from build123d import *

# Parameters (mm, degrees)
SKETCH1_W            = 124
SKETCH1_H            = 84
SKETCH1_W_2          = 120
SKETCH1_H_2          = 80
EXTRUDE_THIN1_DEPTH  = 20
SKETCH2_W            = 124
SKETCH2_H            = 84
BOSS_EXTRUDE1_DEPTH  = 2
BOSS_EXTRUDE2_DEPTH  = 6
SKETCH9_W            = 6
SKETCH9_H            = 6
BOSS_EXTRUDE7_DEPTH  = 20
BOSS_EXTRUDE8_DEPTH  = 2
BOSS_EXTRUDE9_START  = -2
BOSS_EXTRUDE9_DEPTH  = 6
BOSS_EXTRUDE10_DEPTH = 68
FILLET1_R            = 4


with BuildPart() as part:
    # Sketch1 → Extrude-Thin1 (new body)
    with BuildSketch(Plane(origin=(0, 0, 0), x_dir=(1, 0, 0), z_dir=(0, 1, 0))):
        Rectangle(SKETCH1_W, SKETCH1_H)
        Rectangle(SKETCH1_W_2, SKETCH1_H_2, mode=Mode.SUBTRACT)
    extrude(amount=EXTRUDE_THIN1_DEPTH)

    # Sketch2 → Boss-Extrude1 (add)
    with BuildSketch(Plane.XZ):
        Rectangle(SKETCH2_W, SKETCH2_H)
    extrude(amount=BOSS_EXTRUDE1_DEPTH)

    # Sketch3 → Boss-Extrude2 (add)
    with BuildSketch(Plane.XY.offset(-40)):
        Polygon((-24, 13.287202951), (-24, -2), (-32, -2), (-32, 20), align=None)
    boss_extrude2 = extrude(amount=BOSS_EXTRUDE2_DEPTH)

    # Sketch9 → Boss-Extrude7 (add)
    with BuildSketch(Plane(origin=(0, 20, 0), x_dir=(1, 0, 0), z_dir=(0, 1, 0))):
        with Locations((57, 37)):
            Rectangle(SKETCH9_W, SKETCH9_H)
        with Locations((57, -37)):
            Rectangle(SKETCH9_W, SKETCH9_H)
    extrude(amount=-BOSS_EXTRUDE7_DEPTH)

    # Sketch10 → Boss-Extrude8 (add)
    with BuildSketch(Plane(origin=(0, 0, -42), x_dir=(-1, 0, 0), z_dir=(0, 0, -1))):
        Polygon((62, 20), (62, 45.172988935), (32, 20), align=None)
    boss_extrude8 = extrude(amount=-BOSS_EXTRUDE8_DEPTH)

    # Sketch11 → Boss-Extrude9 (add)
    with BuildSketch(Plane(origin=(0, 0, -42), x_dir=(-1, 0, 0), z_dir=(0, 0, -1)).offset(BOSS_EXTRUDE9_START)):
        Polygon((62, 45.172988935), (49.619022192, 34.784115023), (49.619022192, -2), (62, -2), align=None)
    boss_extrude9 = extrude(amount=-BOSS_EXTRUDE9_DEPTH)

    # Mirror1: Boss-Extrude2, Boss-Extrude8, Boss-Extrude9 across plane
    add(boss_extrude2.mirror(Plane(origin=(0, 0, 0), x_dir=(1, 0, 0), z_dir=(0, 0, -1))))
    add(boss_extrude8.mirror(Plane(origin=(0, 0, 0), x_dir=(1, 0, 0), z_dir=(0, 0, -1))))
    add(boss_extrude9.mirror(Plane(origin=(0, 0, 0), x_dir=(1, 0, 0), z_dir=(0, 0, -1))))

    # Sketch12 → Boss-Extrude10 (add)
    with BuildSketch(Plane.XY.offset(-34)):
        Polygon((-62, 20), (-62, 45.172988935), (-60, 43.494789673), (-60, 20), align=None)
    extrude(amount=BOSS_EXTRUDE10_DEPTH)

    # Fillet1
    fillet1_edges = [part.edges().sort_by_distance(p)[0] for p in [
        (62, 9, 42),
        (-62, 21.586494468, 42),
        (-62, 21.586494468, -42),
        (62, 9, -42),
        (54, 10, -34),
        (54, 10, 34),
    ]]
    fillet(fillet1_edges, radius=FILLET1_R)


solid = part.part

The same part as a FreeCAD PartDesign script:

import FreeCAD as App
import Part
import Sketcher
Q = App.Units.Quantity


def edges_at(feature, points):
    """Names of the edges that pass closest to the given points."""
    edges = feature.Shape.Edges
    near = lambda p: min(range(len(edges)), key=lambda i: edges[i].distToShape(Part.Vertex(*p))[0])
    return sorted({f"Edge{near(p) + 1}" for p in points})

doc = App.newDocument("Part")
params = doc.addObject("Spreadsheet::Sheet", "Params")
for row, (alias, value) in enumerate([
    ("sketch1_width", "124 mm"),
    ("sketch1_width2", "120 mm"),
    ("sketch1_height", "84 mm"),
    ("sketch1_height2", "80 mm"),
    ("pad1_length", "20 mm"),
    ("sketch2_width", "124 mm"),
    ("sketch2_height", "84 mm"),
    ("pad2_length", "2 mm"),
    ("sketch3_width", "8 mm"),
    ("sketch3_height", "22 mm"),
    ("pad3_length", "6 mm"),
    ("sketch4_width", "6 mm"),
    ("pad4_length", "20 mm"),
    ("sketch5_width", "30 mm"),
    ("pad5_length", "2 mm"),
    ("pad6_length", "6 mm"),
    ("sketch7_width", "2 mm"),
    ("pad7_length", "68 mm"),
    ("fillet_radius", "4 mm"),
], start=1):
    params.set(f"A{row}", alias)
    params.set(f"B{row}", "=" + value)
    params.setAlias(f"B{row}", alias)

body = doc.addObject("PartDesign::Body", "Body")

# Sketch on XZ plane
sketch1 = body.newObject("Sketcher::SketchObject", "Sketch")
sketch1.AttachmentSupport = (doc.getObject("XZ_Plane"), [""])
sketch1.MapMode = "FlatFace"
sketch1.addGeometry(Part.LineSegment(App.Vector(-62, -42, 0), App.Vector(-62, 42, 0)), False)
sketch1.addGeometry(Part.LineSegment(App.Vector(-62, 42, 0), App.Vector(62, 42, 0)), False)
sketch1.addGeometry(Part.LineSegment(App.Vector(62, 42, 0), App.Vector(62, -42, 0)), False)
sketch1.addGeometry(Part.LineSegment(App.Vector(62, -42, 0), App.Vector(-62, -42, 0)), False)
sketch1.addGeometry(Part.LineSegment(App.Vector(60, 40, 0), App.Vector(-60, 40, 0)), False)
sketch1.addGeometry(Part.LineSegment(App.Vector(-60, 40, 0), App.Vector(-60, -40, 0)), False)
sketch1.addGeometry(Part.LineSegment(App.Vector(-60, -40, 0), App.Vector(60, -40, 0)), False)
sketch1.addGeometry(Part.LineSegment(App.Vector(60, -40, 0), App.Vector(60, 40, 0)), False)
sketch1.addConstraint(Sketcher.Constraint("Coincident", 0, 2, 1, 1))
sketch1.addConstraint(Sketcher.Constraint("Coincident", 1, 2, 2, 1))
sketch1.addConstraint(Sketcher.Constraint("Coincident", 2, 2, 3, 1))
sketch1.addConstraint(Sketcher.Constraint("Coincident", 3, 2, 0, 1))
sketch1.addConstraint(Sketcher.Constraint("Coincident", 4, 2, 5, 1))
sketch1.addConstraint(Sketcher.Constraint("Coincident", 5, 2, 6, 1))
sketch1.addConstraint(Sketcher.Constraint("Coincident", 6, 2, 7, 1))
sketch1.addConstraint(Sketcher.Constraint("Coincident", 7, 2, 4, 1))
sketch1.addConstraint(Sketcher.Constraint("Vertical", 0))
sketch1.addConstraint(Sketcher.Constraint("Horizontal", 1))
sketch1.addConstraint(Sketcher.Constraint("Vertical", 2))
sketch1.addConstraint(Sketcher.Constraint("Horizontal", 3))
sketch1.addConstraint(Sketcher.Constraint("Horizontal", 4))
sketch1.addConstraint(Sketcher.Constraint("Vertical", 5))
sketch1.addConstraint(Sketcher.Constraint("Horizontal", 6))
sketch1.addConstraint(Sketcher.Constraint("Vertical", 7))
sketch1.addConstraint(Sketcher.Constraint("Symmetric", 0, 2, 2, 2, -1, 1))
sketch1.addConstraint(Sketcher.Constraint("Symmetric", 4, 2, 6, 2, -1, 1))
sketch1.addConstraint(Sketcher.Constraint("DistanceX", 1, 1, 1, 2, Q("124 mm")))
sketch1.addConstraint(Sketcher.Constraint("DistanceX", 4, 2, 4, 1, Q("120 mm")))
sketch1.addConstraint(Sketcher.Constraint("DistanceY", 0, 1, 0, 2, Q("84 mm")))
sketch1.addConstraint(Sketcher.Constraint("DistanceY", 5, 2, 5, 1, Q("80 mm")))
sketch1.setExpression("Constraints[18]", "Params.sketch1_width")
sketch1.setExpression("Constraints[19]", "Params.sketch1_width2")
sketch1.setExpression("Constraints[20]", "Params.sketch1_height")
sketch1.setExpression("Constraints[21]", "Params.sketch1_height2")
pad1 = body.newObject("PartDesign::Pad", "Pad")
pad1.Profile = sketch1
pad1.setExpression("Length", "Params.pad1_length")
pad1.Reversed = True

# Sketch on XZ plane
sketch2 = body.newObject("Sketcher::SketchObject", "Sketch001")
sketch2.AttachmentSupport = (doc.getObject("XZ_Plane"), [""])
sketch2.MapMode = "FlatFace"
sketch2.addGeometry(Part.LineSegment(App.Vector(-62, 42, 0), App.Vector(-62, -42, 0)), False)
sketch2.addGeometry(Part.LineSegment(App.Vector(-62, -42, 0), App.Vector(62, -42, 0)), False)
sketch2.addGeometry(Part.LineSegment(App.Vector(62, -42, 0), App.Vector(62, 42, 0)), False)
sketch2.addGeometry(Part.LineSegment(App.Vector(62, 42, 0), App.Vector(-62, 42, 0)), False)
sketch2.addConstraint(Sketcher.Constraint("Coincident", 0, 2, 1, 1))
sketch2.addConstraint(Sketcher.Constraint("Coincident", 1, 2, 2, 1))
sketch2.addConstraint(Sketcher.Constraint("Coincident", 2, 2, 3, 1))
sketch2.addConstraint(Sketcher.Constraint("Coincident", 3, 2, 0, 1))
sketch2.addConstraint(Sketcher.Constraint("Vertical", 0))
sketch2.addConstraint(Sketcher.Constraint("Horizontal", 1))
sketch2.addConstraint(Sketcher.Constraint("Vertical", 2))
sketch2.addConstraint(Sketcher.Constraint("Horizontal", 3))
sketch2.addConstraint(Sketcher.Constraint("Symmetric", 0, 2, 2, 2, -1, 1))
sketch2.addConstraint(Sketcher.Constraint("DistanceX", 1, 1, 1, 2, Q("124 mm")))
sketch2.addConstraint(Sketcher.Constraint("DistanceY", 0, 2, 0, 1, Q("84 mm")))
sketch2.setExpression("Constraints[9]", "Params.sketch2_width")
sketch2.setExpression("Constraints[10]", "Params.sketch2_height")
pad2 = body.newObject("PartDesign::Pad", "Pad001")
pad2.Profile = sketch2
pad2.setExpression("Length", "Params.pad2_length")

# Sketch on XY plane
sketch3 = body.newObject("Sketcher::SketchObject", "Sketch002")
sketch3.AttachmentSupport = (doc.getObject("XY_Plane"), [""])
sketch3.MapMode = "FlatFace"
sketch3.AttachmentOffset = App.Placement(App.Vector(0, 0, -40), App.Rotation())
sketch3.addGeometry(Part.LineSegment(App.Vector(-24, -2, 0), App.Vector(-24, 13.287203, 0)), False)
sketch3.addGeometry(Part.LineSegment(App.Vector(-24, 13.287203, 0), App.Vector(-32, 20, 0)), False)
sketch3.addGeometry(Part.LineSegment(App.Vector(-32, 20, 0), App.Vector(-32, -2, 0)), False)
sketch3.addGeometry(Part.LineSegment(App.Vector(-32, -2, 0), App.Vector(-24, -2, 0)), False)
sketch3.addConstraint(Sketcher.Constraint("Coincident", 0, 2, 1, 1))
sketch3.addConstraint(Sketcher.Constraint("Coincident", 1, 2, 2, 1))
sketch3.addConstraint(Sketcher.Constraint("Coincident", 2, 2, 3, 1))
sketch3.addConstraint(Sketcher.Constraint("Coincident", 3, 2, 0, 1))
sketch3.addConstraint(Sketcher.Constraint("Vertical", 0))
sketch3.addConstraint(Sketcher.Constraint("Vertical", 2))
sketch3.addConstraint(Sketcher.Constraint("Horizontal", 3))
sketch3.addConstraint(Sketcher.Constraint("DistanceX", 3, 1, 3, 2, Q("8 mm")))
sketch3.addConstraint(Sketcher.Constraint("DistanceY", 2, 2, 2, 1, Q("22 mm")))
sketch3.addConstraint(Sketcher.Constraint("Angle", 1, Q("140 deg")))
sketch3.addConstraint(Sketcher.Constraint("DistanceX", 0, 2, -1, 1, Q("24 mm")))
sketch3.addConstraint(Sketcher.Constraint("DistanceY", -1, 1, 1, 2, Q("20 mm")))
sketch3.setExpression("Constraints[7]", "Params.sketch3_width")
sketch3.setExpression("Constraints[8]", "Params.sketch3_height")
pad3 = body.newObject("PartDesign::Pad", "Pad002")
pad3.Profile = sketch3
pad3.setExpression("Length", "Params.pad3_length")

# Sketch on XZ plane
sketch4 = body.newObject("Sketcher::SketchObject", "Sketch003")
sketch4.AttachmentSupport = (doc.getObject("XZ_Plane"), [""])
sketch4.MapMode = "FlatFace"
sketch4.AttachmentOffset = App.Placement(App.Vector(0, 0, -20), App.Rotation())
sketch4.addGeometry(Part.LineSegment(App.Vector(54, -40, 0), App.Vector(54, -34, 0)), False)
sketch4.addGeometry(Part.LineSegment(App.Vector(54, -34, 0), App.Vector(60, -34, 0)), False)
sketch4.addGeometry(Part.LineSegment(App.Vector(60, -34, 0), App.Vector(60, -40, 0)), False)
sketch4.addGeometry(Part.LineSegment(App.Vector(60, -40, 0), App.Vector(54, -40, 0)), False)
sketch4.addGeometry(Part.LineSegment(App.Vector(54, 34, 0), App.Vector(54, 40, 0)), False)
sketch4.addGeometry(Part.LineSegment(App.Vector(54, 40, 0), App.Vector(60, 40, 0)), False)
sketch4.addGeometry(Part.LineSegment(App.Vector(60, 40, 0), App.Vector(60, 34, 0)), False)
sketch4.addGeometry(Part.LineSegment(App.Vector(60, 34, 0), App.Vector(54, 34, 0)), False)
sketch4.addConstraint(Sketcher.Constraint("Coincident", 0, 2, 1, 1))
sketch4.addConstraint(Sketcher.Constraint("Coincident", 1, 2, 2, 1))
sketch4.addConstraint(Sketcher.Constraint("Coincident", 2, 2, 3, 1))
sketch4.addConstraint(Sketcher.Constraint("Coincident", 3, 2, 0, 1))
sketch4.addConstraint(Sketcher.Constraint("Coincident", 4, 2, 5, 1))
sketch4.addConstraint(Sketcher.Constraint("Coincident", 5, 2, 6, 1))
sketch4.addConstraint(Sketcher.Constraint("Coincident", 6, 2, 7, 1))
sketch4.addConstraint(Sketcher.Constraint("Coincident", 7, 2, 4, 1))
sketch4.addConstraint(Sketcher.Constraint("Vertical", 0))
sketch4.addConstraint(Sketcher.Constraint("Horizontal", 1))
sketch4.addConstraint(Sketcher.Constraint("Vertical", 2))
sketch4.addConstraint(Sketcher.Constraint("Horizontal", 3))
sketch4.addConstraint(Sketcher.Constraint("Vertical", 4))
sketch4.addConstraint(Sketcher.Constraint("Horizontal", 5))
sketch4.addConstraint(Sketcher.Constraint("Vertical", 6))
sketch4.addConstraint(Sketcher.Constraint("Horizontal", 7))
sketch4.addConstraint(Sketcher.Constraint("Symmetric", 3, 2, 4, 2, -1))
sketch4.addConstraint(Sketcher.Constraint("Symmetric", 1, 2, 6, 2, -1))
sketch4.addConstraint(Sketcher.Constraint("Equal", 7, 0))
sketch4.addConstraint(Sketcher.Constraint("DistanceX", 1, 1, 1, 2, Q("6 mm")))
sketch4.addConstraint(Sketcher.Constraint("DistanceX", -1, 1, 0, 2, Q("54 mm")))
sketch4.addConstraint(Sketcher.Constraint("DistanceY", 0, 2, -1, 1, Q("34 mm")))
sketch4.setExpression("Constraints[19]", "Params.sketch4_width")
pad4 = body.newObject("PartDesign::Pad", "Pad003")
pad4.Profile = sketch4
pad4.setExpression("Length", "Params.pad4_length")

# Sketch on XY plane
sketch5 = body.newObject("Sketcher::SketchObject", "Sketch004")
sketch5.AttachmentSupport = (doc.getObject("XY_Plane"), [""])
sketch5.MapMode = "FlatFace"
sketch5.AttachmentOffset = App.Placement(App.Vector(0, 0, -42), App.Rotation())
sketch5.addGeometry(Part.LineSegment(App.Vector(-62, 20, 0), App.Vector(-62, 45.172989, 0)), False)
sketch5.addGeometry(Part.LineSegment(App.Vector(-62, 45.172989, 0), App.Vector(-32, 20, 0)), False)
sketch5.addGeometry(Part.LineSegment(App.Vector(-32, 20, 0), App.Vector(-62, 20, 0)), False)
sketch5.addConstraint(Sketcher.Constraint("Coincident", 0, 2, 1, 1))
sketch5.addConstraint(Sketcher.Constraint("Coincident", 1, 2, 2, 1))
sketch5.addConstraint(Sketcher.Constraint("Coincident", 2, 2, 0, 1))
sketch5.addConstraint(Sketcher.Constraint("Vertical", 0))
sketch5.addConstraint(Sketcher.Constraint("Horizontal", 2))
sketch5.addConstraint(Sketcher.Constraint("DistanceX", 2, 2, 2, 1, Q("30 mm")))
sketch5.addConstraint(Sketcher.Constraint("Angle", 1, Q("-40 deg")))
sketch5.addConstraint(Sketcher.Constraint("DistanceX", 0, 2, -1, 1, Q("62 mm")))
sketch5.addConstraint(Sketcher.Constraint("DistanceY", -1, 1, 1, 2, Q("20 mm")))
sketch5.setExpression("Constraints[5]", "Params.sketch5_width")
pad5 = body.newObject("PartDesign::Pad", "Pad004")
pad5.Profile = sketch5
pad5.setExpression("Length", "Params.pad5_length")

# Sketch on XY plane
sketch6 = body.newObject("Sketcher::SketchObject", "Sketch005")
sketch6.AttachmentSupport = (doc.getObject("XY_Plane"), [""])
sketch6.MapMode = "FlatFace"
sketch6.AttachmentOffset = App.Placement(App.Vector(0, 0, -40), App.Rotation())
sketch6.addGeometry(Part.LineSegment(App.Vector(-62, 45.172989, 0), App.Vector(-49.619022, 34.784115, 0)), False)
sketch6.addGeometry(Part.LineSegment(App.Vector(-49.619022, 34.784115, 0), App.Vector(-49.619022, -2, 0)), False)
sketch6.addGeometry(Part.LineSegment(App.Vector(-49.619022, -2, 0), App.Vector(-62, -2, 0)), False)
sketch6.addGeometry(Part.LineSegment(App.Vector(-62, -2, 0), App.Vector(-62, 45.172989, 0)), False)
sketch6.addConstraint(Sketcher.Constraint("Coincident", 0, 2, 1, 1))
sketch6.addConstraint(Sketcher.Constraint("Coincident", 1, 2, 2, 1))
sketch6.addConstraint(Sketcher.Constraint("Coincident", 2, 2, 3, 1))
sketch6.addConstraint(Sketcher.Constraint("Coincident", 3, 2, 0, 1))
sketch6.addConstraint(Sketcher.Constraint("Vertical", 1))
sketch6.addConstraint(Sketcher.Constraint("Horizontal", 2))
sketch6.addConstraint(Sketcher.Constraint("Vertical", 3))
sketch6.addConstraint(Sketcher.Constraint("Angle", 0, Q("-40 deg")))
sketch6.addConstraint(Sketcher.Constraint("DistanceY", 1, 2, -1, 1, Q("2 mm")))
sketch6.addConstraint(Sketcher.Constraint("DistanceX", 2, 2, -1, 1, Q("62 mm")))
sketch6.addConstraint(Sketcher.Constraint("DistanceY", 3, 1, 3, 2, Q("47.172989 mm")))
sketch6.addConstraint(Sketcher.Constraint("Distance", 0, Q("16.162219 mm")))
pad6 = body.newObject("PartDesign::Pad", "Pad005")
pad6.Profile = sketch6
pad6.setExpression("Length", "Params.pad6_length")
doc.recompute()

mirrored = body.newObject("PartDesign::Mirrored", "Mirrored")
mirrored.Originals = [pad3, pad5, pad6]
mirrored.MirrorPlane = (doc.getObject("XY_Plane"), [""])
body.Tip = mirrored

# Sketch on XY plane
sketch7 = body.newObject("Sketcher::SketchObject", "Sketch006")
sketch7.AttachmentSupport = (doc.getObject("XY_Plane"), [""])
sketch7.MapMode = "FlatFace"
sketch7.AttachmentOffset = App.Placement(App.Vector(0, 0, -34), App.Rotation())
sketch7.addGeometry(Part.LineSegment(App.Vector(-62, 45.172989, 0), App.Vector(-62, 20, 0)), False)
sketch7.addGeometry(Part.LineSegment(App.Vector(-62, 20, 0), App.Vector(-60, 20, 0)), False)
sketch7.addGeometry(Part.LineSegment(App.Vector(-60, 20, 0), App.Vector(-60, 43.49479, 0)), False)
sketch7.addGeometry(Part.LineSegment(App.Vector(-60, 43.49479, 0), App.Vector(-62, 45.172989, 0)), False)
sketch7.addConstraint(Sketcher.Constraint("Coincident", 0, 2, 1, 1))
sketch7.addConstraint(Sketcher.Constraint("Coincident", 1, 2, 2, 1))
sketch7.addConstraint(Sketcher.Constraint("Coincident", 2, 2, 3, 1))
sketch7.addConstraint(Sketcher.Constraint("Coincident", 3, 2, 0, 1))
sketch7.addConstraint(Sketcher.Constraint("Vertical", 0))
sketch7.addConstraint(Sketcher.Constraint("Horizontal", 1))
sketch7.addConstraint(Sketcher.Constraint("Vertical", 2))
sketch7.addConstraint(Sketcher.Constraint("DistanceX", 1, 1, 1, 2, Q("2 mm")))
sketch7.addConstraint(Sketcher.Constraint("Angle", 3, Q("140 deg")))
sketch7.addConstraint(Sketcher.Constraint("DistanceX", 0, 2, -1, 1, Q("62 mm")))
sketch7.addConstraint(Sketcher.Constraint("DistanceY", -1, 1, 0, 2, Q("20 mm")))
sketch7.addConstraint(Sketcher.Constraint("DistanceY", 0, 2, 0, 1, Q("25.172989 mm")))
sketch7.setExpression("Constraints[7]", "Params.sketch7_width")
pad7 = body.newObject("PartDesign::Pad", "Pad006")
pad7.Profile = sketch7
pad7.setExpression("Length", "Params.pad7_length")
doc.recompute()

fillet = body.newObject("PartDesign::Fillet", "Fillet")
fillet.Base = (pad7, edges_at(pad7, [
    (62, 9, 42),
    (-62, 21.586, 42),
    (-62, 21.586, -42),
    (62, 9, -42),
    (54, 10, -34),
    (54, 10, 34),
]))
fillet.setExpression("Radius", "Params.fillet_radius")

doc.recompute()
